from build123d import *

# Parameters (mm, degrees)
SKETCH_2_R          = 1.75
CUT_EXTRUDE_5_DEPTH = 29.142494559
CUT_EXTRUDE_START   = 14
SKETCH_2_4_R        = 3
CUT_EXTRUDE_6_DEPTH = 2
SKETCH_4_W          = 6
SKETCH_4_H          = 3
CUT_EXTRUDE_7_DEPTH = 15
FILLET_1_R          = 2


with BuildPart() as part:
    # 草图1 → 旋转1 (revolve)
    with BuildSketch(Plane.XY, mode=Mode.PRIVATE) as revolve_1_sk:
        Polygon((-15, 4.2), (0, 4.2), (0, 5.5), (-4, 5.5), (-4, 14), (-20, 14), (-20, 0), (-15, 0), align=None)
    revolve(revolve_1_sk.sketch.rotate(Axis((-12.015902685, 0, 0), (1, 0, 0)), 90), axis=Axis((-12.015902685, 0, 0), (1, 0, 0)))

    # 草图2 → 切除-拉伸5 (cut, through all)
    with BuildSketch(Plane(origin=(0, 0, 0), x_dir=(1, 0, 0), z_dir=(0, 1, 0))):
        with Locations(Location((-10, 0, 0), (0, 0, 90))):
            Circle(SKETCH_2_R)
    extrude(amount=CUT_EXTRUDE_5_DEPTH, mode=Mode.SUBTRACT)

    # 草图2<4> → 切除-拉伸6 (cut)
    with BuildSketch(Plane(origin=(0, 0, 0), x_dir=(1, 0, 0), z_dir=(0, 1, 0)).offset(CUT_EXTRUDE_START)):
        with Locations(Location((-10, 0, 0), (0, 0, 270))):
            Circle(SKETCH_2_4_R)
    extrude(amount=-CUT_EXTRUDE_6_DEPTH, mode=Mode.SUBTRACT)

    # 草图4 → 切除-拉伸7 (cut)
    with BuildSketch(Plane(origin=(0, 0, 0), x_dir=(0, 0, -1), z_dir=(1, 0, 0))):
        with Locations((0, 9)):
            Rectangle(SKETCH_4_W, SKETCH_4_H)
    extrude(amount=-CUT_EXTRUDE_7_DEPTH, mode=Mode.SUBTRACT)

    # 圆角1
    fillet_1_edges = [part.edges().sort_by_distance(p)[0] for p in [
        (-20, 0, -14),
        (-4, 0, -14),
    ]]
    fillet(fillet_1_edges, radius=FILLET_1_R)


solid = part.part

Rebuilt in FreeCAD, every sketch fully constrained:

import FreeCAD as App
import Part
import Sketcher

V = App.Vector
Q = App.Units.Quantity


def edges_at(feature, points):
    """Names of the edges that pass closest to the given points."""
    edges = feature.Shape.Edges
    near = lambda p: min(range(len(edges)), key=lambda i: edges[i].distToShape(Part.Vertex(*p))[0])
    return sorted({f"Edge{near(p) + 1}" for p in points})


def add_polygon(sketch, points):
    """Adds a closed chain of lines whose ends are joined by coincident constraints."""
    first, n = sketch.GeometryCount, len(points)
    for a, b in zip(points, points[1:] + points[:1]):
        sketch.addGeometry(Part.LineSegment(App.Vector(*a, 0), App.Vector(*b, 0)), False)
    for i in range(n):
        sketch.addConstraint(Sketcher.Constraint("Coincident", first + i, 2, first + (i + 1) % n, 1))

doc = App.newDocument("Part")
params = doc.addObject("Spreadsheet::Sheet", "Params")
for row, (alias, value) in enumerate([
    ("sketch1_width", "15 mm"),
    ("sketch1_width2", "4 mm"),
    ("sketch1_width3", "16 mm"),
    ("sketch1_height", "14 mm"),
    ("sketch1_height2", "1.3 mm"),
    ("revolution_angle", "360 deg"),
    ("sketch2_diameter", "3.5 mm"),
    ("sketch3_diameter", "6 mm"),
    ("pocket2_length", "2 mm"),
    ("sketch4_width", "3 mm"),
    ("sketch4_height", "6 mm"),
    ("pocket3_length", "15 mm"),
    ("fillet_radius", "2 mm"),
], start=1):
    params.set(f"A{row}", alias)
    params.set(f"B{row}", "=" + value)
    params.setAlias(f"B{row}", alias)

body = doc.addObject("PartDesign::Body", "Body")

# Sketch on XY plane
sketch1 = body.newObject("Sketcher::SketchObject", "Sketch")
sketch1.AttachmentSupport = (doc.getObject("XY_Plane"), [""])
sketch1.MapMode = "FlatFace"
add_polygon(sketch1, [(-15, 4.2), (0, 4.2), (0, 5.5), (-4, 5.5), (-4, 14), (-20, 14), (-20, 0), (-15, 0)])  # lines 0-7
sketch1.addConstraint(Sketcher.Constraint("Horizontal", 0))
sketch1.addConstraint(Sketcher.Constraint("Vertical", 1))
sketch1.addConstraint(Sketcher.Constraint("Horizontal", 2))
sketch1.addConstraint(Sketcher.Constraint("Vertical", 3))
sketch1.addConstraint(Sketcher.Constraint("Horizontal", 4))
sketch1.addConstraint(Sketcher.Constraint("Vertical", 5))
sketch1.addConstraint(Sketcher.Constraint("Horizontal", 6))
sketch1.addConstraint(Sketcher.Constraint("Vertical", 7))
sketch1.addConstraint(Sketcher.Constraint("PointOnObject", 0, 2, -2))
sketch1.addConstraint(Sketcher.Constraint("PointOnObject", 5, 2, -1))
sketch1.addConstraint(Sketcher.Constraint("DistanceX", 0, 1, 0, 2, Q("15 mm")))
sketch1.addConstraint(Sketcher.Constraint("DistanceX", 2, 2, 2, 1, Q("4 mm")))
sketch1.addConstraint(Sketcher.Constraint("DistanceX", 4, 2, 4, 1, Q("16 mm")))
sketch1.addConstraint(Sketcher.Constraint("DistanceY", 5, 2, 5, 1, Q("14 mm")))
sketch1.addConstraint(Sketcher.Constraint("DistanceY", 1, 1, 1, 2, Q("1.3 mm")))
sketch1.addConstraint(Sketcher.Constraint("DistanceY", 3, 1, 3, 2, Q("8.5 mm")))
sketch1.setExpression("Constraints[18]", "Params.sketch1_width")
sketch1.setExpression("Constraints[19]", "Params.sketch1_width2")
sketch1.setExpression("Constraints[20]", "Params.sketch1_width3")
sketch1.setExpression("Constraints[21]", "Params.sketch1_height")
sketch1.setExpression("Constraints[22]", "Params.sketch1_height2")
revolution = body.newObject("PartDesign::Revolution", "Revolution")
revolution.Profile = sketch1
revolution.ReferenceAxis = (sketch1, ["H_Axis"])
revolution.setExpression("Angle", "Params.revolution_angle")

# Sketch on XZ plane
sketch2 = body.newObject("Sketcher::SketchObject", "Sketch001")
sketch2.AttachmentSupport = (doc.getObject("XZ_Plane"), [""])
sketch2.MapMode = "FlatFace"
sketch2.addGeometry(Part.Circle(V(-10, 0, 0), V(0, 0, 1), 1.75), False)
sketch2.addConstraint(Sketcher.Constraint("PointOnObject", 0, 3, -1))
sketch2.addConstraint(Sketcher.Constraint("Diameter", 0, Q("3.5 mm")))
sketch2.addConstraint(Sketcher.Constraint("DistanceX", 0, 3, -1, 1, Q("10 mm")))
sketch2.setExpression("Constraints[1]", "Params.sketch2_diameter")
pocket1 = body.newObject("PartDesign::Pocket", "Pocket")
pocket1.Profile = sketch2
pocket1.Type = "ThroughAll"

# Sketch on XZ plane
sketch3 = body.newObject("Sketcher::SketchObject", "Sketch002")
sketch3.AttachmentSupport = (doc.getObject("XZ_Plane"), [""])
sketch3.MapMode = "FlatFace"
sketch3.AttachmentOffset = App.Placement(V(0, 0, -14), App.Rotation())
sketch3.addGeometry(Part.Circle(V(-10, 0, 0), V(0, 0, 1), 3), False)
sketch3.addConstraint(Sketcher.Constraint("PointOnObject", 0, 3, -1))
sketch3.addConstraint(Sketcher.Constraint("Diameter", 0, Q("6 mm")))
sketch3.addConstraint(Sketcher.Constraint("DistanceX", 0, 3, -1, 1, Q("10 mm")))
sketch3.setExpression("Constraints[1]", "Params.sketch3_diameter")
pocket2 = body.newObject("PartDesign::Pocket", "Pocket001")
pocket2.Profile = sketch3
pocket2.setExpression("Length", "Params.pocket2_length")
pocket2.Reversed = True

# Sketch on YZ plane
sketch4 = body.newObject("Sketcher::SketchObject", "Sketch003")
sketch4.AttachmentSupport = (doc.getObject("YZ_Plane"), [""])
sketch4.MapMode = "FlatFace"
add_polygon(sketch4, [(10.5, 3), (7.5, 3), (7.5, -3), (10.5, -3)])  # lines 0-3
sketch4.addConstraint(Sketcher.Constraint("Horizontal", 0))
sketch4.addConstraint(Sketcher.Constraint("Vertical", 1))
sketch4.addConstraint(Sketcher.Constraint("Horizontal", 2))
sketch4.addConstraint(Sketcher.Constraint("Vertical", 3))
sketch4.addConstraint(Sketcher.Constraint("DistanceX", 0, 2, 0, 1, Q("3 mm")))
sketch4.addConstraint(Sketcher.Constraint("DistanceY", 1, 2, 1, 1, Q("6 mm")))
sketch4.addConstraint(Sketcher.Constraint("DistanceY", -1, 1, 0, 2, Q("3 mm")))
sketch4.addConstraint(Sketcher.Constraint("DistanceX", -1, 1, 0, 2, Q("7.5 mm")))
sketch4.setExpression("Constraints[8]", "Params.sketch4_width")
sketch4.setExpression("Constraints[9]", "Params.sketch4_height")
pocket3 = body.newObject("PartDesign::Pocket", "Pocket002")
pocket3.Profile = sketch4
pocket3.setExpression("Length", "Params.pocket3_length")
doc.recompute()

fillet = body.newObject("PartDesign::Fillet", "Fillet")
fillet.Base = (pocket3, edges_at(pocket3, [(-20, 0, -14), (-4, 0, -14)]))
fillet.setExpression("Radius", "Params.fillet_radius")

doc.recompute()
